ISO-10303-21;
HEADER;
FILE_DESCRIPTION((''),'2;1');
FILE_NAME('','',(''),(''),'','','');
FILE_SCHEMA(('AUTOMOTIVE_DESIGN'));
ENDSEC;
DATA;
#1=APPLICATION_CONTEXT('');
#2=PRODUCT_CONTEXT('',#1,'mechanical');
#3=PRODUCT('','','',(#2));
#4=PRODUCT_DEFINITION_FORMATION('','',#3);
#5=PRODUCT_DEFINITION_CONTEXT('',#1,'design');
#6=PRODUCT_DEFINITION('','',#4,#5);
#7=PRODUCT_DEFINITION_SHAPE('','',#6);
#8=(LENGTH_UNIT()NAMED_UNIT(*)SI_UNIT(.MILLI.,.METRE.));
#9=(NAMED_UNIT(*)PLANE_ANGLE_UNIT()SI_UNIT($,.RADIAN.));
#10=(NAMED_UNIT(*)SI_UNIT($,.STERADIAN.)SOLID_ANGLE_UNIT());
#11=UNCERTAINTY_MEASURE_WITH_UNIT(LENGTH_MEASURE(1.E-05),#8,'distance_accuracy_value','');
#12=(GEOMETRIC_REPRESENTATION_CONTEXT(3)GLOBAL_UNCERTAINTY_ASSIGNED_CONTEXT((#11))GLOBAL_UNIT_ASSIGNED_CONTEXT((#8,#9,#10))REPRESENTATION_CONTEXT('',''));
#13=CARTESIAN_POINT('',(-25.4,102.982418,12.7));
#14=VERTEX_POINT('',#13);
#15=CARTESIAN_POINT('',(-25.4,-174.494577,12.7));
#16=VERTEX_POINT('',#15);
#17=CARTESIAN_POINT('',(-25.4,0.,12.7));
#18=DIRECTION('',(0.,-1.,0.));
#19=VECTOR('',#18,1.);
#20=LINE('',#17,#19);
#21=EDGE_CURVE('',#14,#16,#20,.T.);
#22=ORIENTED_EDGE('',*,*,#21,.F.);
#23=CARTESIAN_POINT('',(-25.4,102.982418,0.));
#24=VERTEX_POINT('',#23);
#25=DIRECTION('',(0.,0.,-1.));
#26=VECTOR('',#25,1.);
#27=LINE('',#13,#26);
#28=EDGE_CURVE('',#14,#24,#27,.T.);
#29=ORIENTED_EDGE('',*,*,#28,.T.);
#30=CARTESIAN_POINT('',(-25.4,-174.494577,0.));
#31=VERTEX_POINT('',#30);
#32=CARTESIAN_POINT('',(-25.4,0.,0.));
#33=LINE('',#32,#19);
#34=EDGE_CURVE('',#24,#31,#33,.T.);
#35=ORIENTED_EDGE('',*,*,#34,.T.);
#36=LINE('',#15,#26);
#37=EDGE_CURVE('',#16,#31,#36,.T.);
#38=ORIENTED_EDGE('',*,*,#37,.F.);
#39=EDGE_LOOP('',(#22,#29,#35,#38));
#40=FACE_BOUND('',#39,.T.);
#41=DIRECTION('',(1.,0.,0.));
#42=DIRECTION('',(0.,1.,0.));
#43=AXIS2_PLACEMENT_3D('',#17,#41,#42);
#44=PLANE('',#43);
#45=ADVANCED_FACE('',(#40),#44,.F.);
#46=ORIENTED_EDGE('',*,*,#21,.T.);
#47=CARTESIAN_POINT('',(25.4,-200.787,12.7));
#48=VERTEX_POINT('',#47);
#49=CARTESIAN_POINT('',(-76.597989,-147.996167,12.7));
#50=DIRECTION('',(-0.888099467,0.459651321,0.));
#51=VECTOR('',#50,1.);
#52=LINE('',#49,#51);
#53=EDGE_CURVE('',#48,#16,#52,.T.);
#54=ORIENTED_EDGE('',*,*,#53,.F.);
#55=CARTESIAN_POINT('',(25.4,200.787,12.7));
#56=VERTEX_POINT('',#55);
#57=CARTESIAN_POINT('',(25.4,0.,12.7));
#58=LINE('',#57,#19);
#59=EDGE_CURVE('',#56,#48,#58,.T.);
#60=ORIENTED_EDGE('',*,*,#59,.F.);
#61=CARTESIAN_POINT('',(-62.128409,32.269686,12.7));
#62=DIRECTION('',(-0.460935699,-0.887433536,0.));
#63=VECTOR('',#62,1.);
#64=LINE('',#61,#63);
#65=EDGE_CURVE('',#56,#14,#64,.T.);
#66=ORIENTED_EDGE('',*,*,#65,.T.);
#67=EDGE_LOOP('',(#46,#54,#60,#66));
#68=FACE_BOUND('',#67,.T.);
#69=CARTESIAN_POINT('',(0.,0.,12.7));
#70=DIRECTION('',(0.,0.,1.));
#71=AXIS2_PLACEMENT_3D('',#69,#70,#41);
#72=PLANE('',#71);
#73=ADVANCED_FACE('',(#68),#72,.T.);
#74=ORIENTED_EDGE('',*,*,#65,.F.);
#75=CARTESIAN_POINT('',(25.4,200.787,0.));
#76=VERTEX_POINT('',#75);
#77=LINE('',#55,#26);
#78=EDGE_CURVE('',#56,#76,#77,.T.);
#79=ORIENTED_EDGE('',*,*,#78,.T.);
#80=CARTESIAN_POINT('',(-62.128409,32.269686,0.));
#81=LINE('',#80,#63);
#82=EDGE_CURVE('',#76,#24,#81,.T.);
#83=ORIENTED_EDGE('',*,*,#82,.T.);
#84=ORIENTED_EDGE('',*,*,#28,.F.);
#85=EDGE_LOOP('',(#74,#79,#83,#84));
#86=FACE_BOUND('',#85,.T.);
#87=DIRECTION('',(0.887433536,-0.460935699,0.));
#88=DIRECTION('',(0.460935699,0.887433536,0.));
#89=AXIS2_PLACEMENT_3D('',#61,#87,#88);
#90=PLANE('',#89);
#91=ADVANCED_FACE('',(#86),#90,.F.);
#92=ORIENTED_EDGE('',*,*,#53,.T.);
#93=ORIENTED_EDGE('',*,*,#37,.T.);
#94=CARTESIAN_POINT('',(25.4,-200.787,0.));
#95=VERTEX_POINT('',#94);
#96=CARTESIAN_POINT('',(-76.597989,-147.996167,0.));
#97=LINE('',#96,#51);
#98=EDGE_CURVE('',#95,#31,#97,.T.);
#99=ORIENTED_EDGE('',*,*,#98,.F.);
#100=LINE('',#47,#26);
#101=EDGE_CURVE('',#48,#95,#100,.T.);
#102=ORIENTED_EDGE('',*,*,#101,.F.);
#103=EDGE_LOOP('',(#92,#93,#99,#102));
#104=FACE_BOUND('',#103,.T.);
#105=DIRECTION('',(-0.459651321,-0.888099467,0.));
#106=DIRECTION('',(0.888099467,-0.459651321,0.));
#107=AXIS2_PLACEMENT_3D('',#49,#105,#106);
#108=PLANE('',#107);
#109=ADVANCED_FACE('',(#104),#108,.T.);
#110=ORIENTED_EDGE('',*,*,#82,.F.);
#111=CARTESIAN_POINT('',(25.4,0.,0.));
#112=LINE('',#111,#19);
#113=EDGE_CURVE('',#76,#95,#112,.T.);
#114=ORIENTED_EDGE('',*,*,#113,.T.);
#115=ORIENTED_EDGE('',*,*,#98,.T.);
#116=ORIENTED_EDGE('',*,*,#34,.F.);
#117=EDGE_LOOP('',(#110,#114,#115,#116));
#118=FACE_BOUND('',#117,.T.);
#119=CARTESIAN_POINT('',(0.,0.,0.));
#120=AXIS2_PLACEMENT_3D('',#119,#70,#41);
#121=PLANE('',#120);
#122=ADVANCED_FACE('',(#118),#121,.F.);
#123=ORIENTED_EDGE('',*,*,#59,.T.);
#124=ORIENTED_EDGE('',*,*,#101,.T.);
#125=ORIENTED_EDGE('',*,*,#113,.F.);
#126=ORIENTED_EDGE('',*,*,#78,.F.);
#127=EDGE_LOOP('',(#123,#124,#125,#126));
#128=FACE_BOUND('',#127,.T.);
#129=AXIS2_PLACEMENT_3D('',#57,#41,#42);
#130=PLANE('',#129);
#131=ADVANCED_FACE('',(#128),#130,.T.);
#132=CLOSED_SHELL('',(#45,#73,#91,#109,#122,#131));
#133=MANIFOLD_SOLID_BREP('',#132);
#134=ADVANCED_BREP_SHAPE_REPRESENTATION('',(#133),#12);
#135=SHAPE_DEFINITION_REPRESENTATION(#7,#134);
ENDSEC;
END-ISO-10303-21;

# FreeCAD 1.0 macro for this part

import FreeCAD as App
import Part
import Sketcher

V = App.Vector
Q = App.Units.Quantity


def add_polygon(sketch, points):
    """Adds a closed chain of lines whose ends are joined by coincident constraints."""
    first, n = sketch.GeometryCount, len(points)
    for a, b in zip(points, points[1:] + points[:1]):
        sketch.addGeometry(Part.LineSegment(App.Vector(*a, 0), App.Vector(*b, 0)), False)
    for i in range(n):
        sketch.addConstraint(Sketcher.Constraint("Coincident", first + i, 2, first + (i + 1) % n, 1))

doc = App.newDocument("Part")
body = doc.addObject("PartDesign::Body", "Body")

# Sketch on XY plane
sketch1 = body.newObject("Sketcher::SketchObject", "Sketch")
sketch1.AttachmentSupport = (doc.getObject("XY_Plane"), [""])
sketch1.MapMode = "FlatFace"
add_polygon(sketch1, [(25.4, -200.787), (25.4, 200.787), (-25.4, 102.982418), (-25.4, -174.494577)])  # lines 0-3
sketch1.addConstraint(Sketcher.Constraint("Vertical", 0))
sketch1.addConstraint(Sketcher.Constraint("Vertical", 2))
sketch1.addConstraint(Sketcher.Constraint("DistanceX", -1, 1, 0, 2, Q("1 in")))
sketch1.addConstraint(Sketcher.Constraint("DistanceX", 1, 2, -1, 1, Q("1 in")))
sketch1.addConstraint(Sketcher.Constraint("DistanceY", 0, 1, 0, 2, Q("15.81 in")))
sketch1.addConstraint(Sketcher.Constraint("Distance", 1, Q("4.339 in")))
sketch1.addConstraint(Sketcher.Constraint("Distance", 3, Q("2.252 in")))
sketch1.addConstraint(Sketcher.Constraint("DistanceY", -1, 1, 0, 2, Q("7.905 in")))
pad1 = body.newObject("PartDesign::Pad", "Pad")
pad1.Profile = sketch1
pad1.Length = Q("0.5 in")

doc.recompute()
